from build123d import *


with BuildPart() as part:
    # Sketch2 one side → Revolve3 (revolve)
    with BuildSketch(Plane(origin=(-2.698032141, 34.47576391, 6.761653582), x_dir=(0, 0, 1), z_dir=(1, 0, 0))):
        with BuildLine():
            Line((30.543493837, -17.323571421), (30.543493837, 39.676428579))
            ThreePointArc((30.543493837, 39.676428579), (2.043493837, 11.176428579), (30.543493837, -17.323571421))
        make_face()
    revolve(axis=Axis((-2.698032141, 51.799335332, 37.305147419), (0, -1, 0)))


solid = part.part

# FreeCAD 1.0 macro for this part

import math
import FreeCAD as App
import Part
import Sketcher
Q = App.Units.Quantity

doc = App.newDocument("Part")
body = doc.addObject("PartDesign::Body", "Body")

# Sketch on YZ plane
sketch1 = body.newObject("Sketcher::SketchObject", "Sketch")
sketch1.AttachmentSupport = (doc.getObject("YZ_Plane"), [""])
sketch1.MapMode = "FlatFace"
sketch1.AttachmentOffset = App.Placement(App.Vector(0, 0, -2.698032), App.Rotation())
sketch1.addGeometry(Part.LineSegment(App.Vector(52, 37, 0), App.Vector(-5, 37, 0)), False)
sketch1.addGeometry(Part.ArcOfCircle(Part.Circle(App.Vector(23, 37, 0), App.Vector(0, 0, 1), 28), math.radians(180), math.radians(360)), False)
sketch1.addGeometry(Part.LineSegment(App.Vector(52, 37, 0), App.Vector(-5, 37, 0)), True)  # axis
sketch1.addConstraint(Sketcher.Constraint("Coincident", 0, 1, 1, 2))
sketch1.addConstraint(Sketcher.Constraint("Coincident", 1, 1, 0, 2))
sketch1.addConstraint(Sketcher.Constraint("Horizontal", 0))
sketch1.addConstraint(Sketcher.Constraint("Horizontal", 2))
sketch1.addConstraint(Sketcher.Constraint("Coincident", 2, 1, 0, 1))
sketch1.addConstraint(Sketcher.Constraint("Horizontal", 1, 3, 0, 1))
sketch1.addConstraint(Sketcher.Constraint("Equal", 0, 2))
sketch1.addConstraint(Sketcher.Constraint("Radius", 1, Q("28.5 mm")))
sketch1.addConstraint(Sketcher.Constraint("DistanceX", -1, 1, 1, 3, Q("23.299335 mm")))
sketch1.addConstraint(Sketcher.Constraint("DistanceY", -1, 1, 1, 3, Q("37.305147 mm")))
revolution = body.newObject("PartDesign::Revolution", "Revolution")
revolution.Profile = sketch1
revolution.ReferenceAxis = (sketch1, ["Axis0"])
revolution.Angle = 360

doc.recompute()
